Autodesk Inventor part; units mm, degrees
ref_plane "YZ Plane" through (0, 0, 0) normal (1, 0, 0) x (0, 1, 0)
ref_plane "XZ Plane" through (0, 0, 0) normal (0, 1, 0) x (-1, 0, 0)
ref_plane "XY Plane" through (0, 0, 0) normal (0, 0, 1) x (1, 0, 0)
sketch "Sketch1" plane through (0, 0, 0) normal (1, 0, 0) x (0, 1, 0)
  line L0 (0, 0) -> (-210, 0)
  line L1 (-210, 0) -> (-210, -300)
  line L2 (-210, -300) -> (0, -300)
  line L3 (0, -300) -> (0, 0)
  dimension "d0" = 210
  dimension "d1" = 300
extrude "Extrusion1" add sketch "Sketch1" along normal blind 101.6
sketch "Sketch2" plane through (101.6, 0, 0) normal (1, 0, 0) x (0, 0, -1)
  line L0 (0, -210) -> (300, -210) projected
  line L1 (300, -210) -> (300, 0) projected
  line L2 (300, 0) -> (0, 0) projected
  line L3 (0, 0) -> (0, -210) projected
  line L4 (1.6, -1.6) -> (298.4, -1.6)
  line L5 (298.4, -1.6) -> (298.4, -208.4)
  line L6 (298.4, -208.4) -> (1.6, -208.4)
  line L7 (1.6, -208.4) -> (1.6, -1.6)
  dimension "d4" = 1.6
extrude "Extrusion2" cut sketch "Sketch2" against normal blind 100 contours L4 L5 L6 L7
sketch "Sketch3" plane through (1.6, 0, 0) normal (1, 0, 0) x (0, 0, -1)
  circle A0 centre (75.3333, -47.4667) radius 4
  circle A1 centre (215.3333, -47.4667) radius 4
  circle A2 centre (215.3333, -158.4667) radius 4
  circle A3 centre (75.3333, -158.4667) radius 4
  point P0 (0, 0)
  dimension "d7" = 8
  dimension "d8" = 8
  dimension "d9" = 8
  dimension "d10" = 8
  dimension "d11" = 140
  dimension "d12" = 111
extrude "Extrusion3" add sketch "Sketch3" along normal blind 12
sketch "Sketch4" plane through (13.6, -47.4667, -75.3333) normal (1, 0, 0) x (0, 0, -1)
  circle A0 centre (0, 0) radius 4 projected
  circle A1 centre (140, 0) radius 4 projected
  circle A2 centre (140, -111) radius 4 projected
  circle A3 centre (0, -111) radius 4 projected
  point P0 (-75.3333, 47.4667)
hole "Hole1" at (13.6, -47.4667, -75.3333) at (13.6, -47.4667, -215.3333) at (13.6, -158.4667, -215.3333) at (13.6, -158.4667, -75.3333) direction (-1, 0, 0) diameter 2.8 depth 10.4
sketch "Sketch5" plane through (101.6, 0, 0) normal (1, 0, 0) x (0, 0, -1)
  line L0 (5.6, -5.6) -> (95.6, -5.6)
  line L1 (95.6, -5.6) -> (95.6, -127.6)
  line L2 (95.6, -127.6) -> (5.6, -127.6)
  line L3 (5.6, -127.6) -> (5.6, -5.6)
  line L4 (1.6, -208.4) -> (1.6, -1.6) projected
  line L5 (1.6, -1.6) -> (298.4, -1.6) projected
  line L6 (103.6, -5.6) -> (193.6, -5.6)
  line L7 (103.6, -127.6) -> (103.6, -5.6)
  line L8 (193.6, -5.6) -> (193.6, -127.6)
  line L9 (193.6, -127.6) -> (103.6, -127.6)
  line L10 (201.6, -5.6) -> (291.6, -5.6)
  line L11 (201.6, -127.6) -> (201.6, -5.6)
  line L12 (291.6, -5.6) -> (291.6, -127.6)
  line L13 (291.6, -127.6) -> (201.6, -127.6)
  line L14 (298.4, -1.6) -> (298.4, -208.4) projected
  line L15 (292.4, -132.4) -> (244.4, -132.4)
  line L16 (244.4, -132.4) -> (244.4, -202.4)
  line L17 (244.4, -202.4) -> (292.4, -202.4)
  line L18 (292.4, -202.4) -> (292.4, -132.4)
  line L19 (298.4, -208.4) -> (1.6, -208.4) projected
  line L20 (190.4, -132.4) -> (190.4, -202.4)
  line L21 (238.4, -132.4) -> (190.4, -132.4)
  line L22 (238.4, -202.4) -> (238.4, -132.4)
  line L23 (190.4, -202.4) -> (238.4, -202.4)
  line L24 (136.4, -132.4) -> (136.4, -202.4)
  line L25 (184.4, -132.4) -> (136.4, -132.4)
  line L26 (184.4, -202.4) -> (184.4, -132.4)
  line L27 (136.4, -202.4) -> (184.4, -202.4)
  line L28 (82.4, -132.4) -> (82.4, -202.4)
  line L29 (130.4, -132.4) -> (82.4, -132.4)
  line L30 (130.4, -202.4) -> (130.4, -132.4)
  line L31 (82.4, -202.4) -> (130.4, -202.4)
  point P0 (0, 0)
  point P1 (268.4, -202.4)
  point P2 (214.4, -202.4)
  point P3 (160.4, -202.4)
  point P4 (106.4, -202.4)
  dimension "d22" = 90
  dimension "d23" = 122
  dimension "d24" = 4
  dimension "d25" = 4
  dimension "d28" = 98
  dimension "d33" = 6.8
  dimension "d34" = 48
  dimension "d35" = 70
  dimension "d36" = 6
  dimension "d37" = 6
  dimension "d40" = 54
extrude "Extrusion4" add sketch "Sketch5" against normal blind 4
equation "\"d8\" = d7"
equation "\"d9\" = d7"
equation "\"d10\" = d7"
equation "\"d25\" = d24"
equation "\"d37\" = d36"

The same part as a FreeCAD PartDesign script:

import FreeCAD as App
import Part
import Sketcher


def add_polygon(sketch, points):
    """Adds a closed chain of lines whose ends are joined by coincident constraints."""
    first, n = sketch.GeometryCount, len(points)
    for a, b in zip(points, points[1:] + points[:1]):
        sketch.addGeometry(Part.LineSegment(App.Vector(*a, 0), App.Vector(*b, 0)), False)
    for i in range(n):
        sketch.addConstraint(Sketcher.Constraint("Coincident", first + i, 2, first + (i + 1) % n, 1))

doc = App.newDocument("Part")
params = doc.addObject("Spreadsheet::Sheet", "Params")
for row, (alias, value) in enumerate([
    ("sketch1_width", "210 mm"),
    ("sketch1_height", "300 mm"),
    ("pad1_length", "101.6 mm"),
    ("sketch2_width", "206.8 mm"),
    ("sketch2_height", "296.8 mm"),
    ("pocket1_length", "100 mm"),
    ("sketch3_diameter", "8 mm"),
    ("pad2_length", "12 mm"),
    ("sketch4_diameter", "2.8 mm"),
    ("hole_diameter", "2.8 mm"),
    ("hole_depth", "10.4 mm"),
    ("sketch5_width", "70 mm"),
    ("sketch5_width2", "122 mm"),
    ("sketch5_height", "48 mm"),
    ("sketch5_height2", "90 mm"),
    ("sketch5_width3", "206.8 mm"),
    ("pad3_length", "4 mm"),
], start=1):
    params.set(f"A{row}", alias)
    params.set(f"B{row}", "=" + value)
    params.setAlias(f"B{row}", alias)

body = doc.addObject("PartDesign::Body", "Body")

sketch1 = body.newObject("Sketcher::SketchObject", "Sketch")
sketch1.AttachmentSupport = (doc.getObject("YZ_Plane"), [""])
sketch1.MapMode = "FlatFace"
add_polygon(sketch1, [(0, -300), (0, 0), (-210, 0), (-210, -300)])
sketch1.addConstraint(Sketcher.Constraint("Vertical", 0))
sketch1.addConstraint(Sketcher.Constraint("Horizontal", 1))
sketch1.addConstraint(Sketcher.Constraint("Vertical", 2))
sketch1.addConstraint(Sketcher.Constraint("Horizontal", 3))
sketch1.addConstraint(Sketcher.Constraint("Coincident", 0, 2, -1, 1))
sketch1.addConstraint(Sketcher.Constraint("DistanceX", 1, 2, 1, 1, 210.0))
sketch1.addConstraint(Sketcher.Constraint("DistanceY", 0, 1, 0, 2, 300.0))
sketch1.setExpression("Constraints[9]", "Params.sketch1_width")
sketch1.setExpression("Constraints[10]", "Params.sketch1_height")
pad1 = body.newObject("PartDesign::Pad", "Pad")
pad1.Profile = sketch1
pad1.setExpression("Length", "Params.pad1_length")

sketch2 = body.newObject("Sketcher::SketchObject", "Sketch001")
sketch2.AttachmentSupport = (doc.getObject("YZ_Plane"), [""])
sketch2.MapMode = "FlatFace"
sketch2.AttachmentOffset = App.Placement(App.Vector(0, 0, 101.6), App.Rotation())
add_polygon(sketch2, [(-2, -298), (-2, -2), (-208, -2), (-208, -298)])
sketch2.addConstraint(Sketcher.Constraint("Vertical", 0))
sketch2.addConstraint(Sketcher.Constraint("Horizontal", 1))
sketch2.addConstraint(Sketcher.Constraint("Vertical", 2))
sketch2.addConstraint(Sketcher.Constraint("Horizontal", 3))
sketch2.addConstraint(Sketcher.Constraint("DistanceX", 0, 2, -1, 1, 1.6))
sketch2.addConstraint(Sketcher.Constraint("DistanceY", 0, 2, -1, 1, 1.6))
sketch2.addConstraint(Sketcher.Constraint("DistanceX", 1, 2, 1, 1, 206.8))
sketch2.addConstraint(Sketcher.Constraint("DistanceY", 0, 1, 0, 2, 296.8))
sketch2.setExpression("Constraints[10]", "Params.sketch2_width")
sketch2.setExpression("Constraints[11]", "Params.sketch2_height")
pocket1 = body.newObject("PartDesign::Pocket", "Pocket")
pocket1.Profile = sketch2
pocket1.setExpression("Length", "Params.pocket1_length")

sketch3 = body.newObject("Sketcher::SketchObject", "Sketch002")
sketch3.AttachmentSupport = (doc.getObject("YZ_Plane"), [""])
sketch3.MapMode = "FlatFace"
sketch3.AttachmentOffset = App.Placement(App.Vector(0, 0, 1.6), App.Rotation())
sketch3.addGeometry(Part.Circle(App.Vector(-47.5, -75.3, 0), App.Vector(0, 0, 1), 4), False)
sketch3.addGeometry(Part.Circle(App.Vector(-47.5, -215.3, 0), App.Vector(0, 0, 1), 4), False)
sketch3.addGeometry(Part.Circle(App.Vector(-158.5, -215.3, 0), App.Vector(0, 0, 1), 4), False)
sketch3.addGeometry(Part.Circle(App.Vector(-158.5, -75.3, 0), App.Vector(0, 0, 1), 4), False)
sketch3.addConstraint(Sketcher.Constraint("Equal", 0, 1))
sketch3.addConstraint(Sketcher.Constraint("Equal", 1, 2))
sketch3.addConstraint(Sketcher.Constraint("Equal", 2, 3))
sketch3.addConstraint(Sketcher.Constraint("Horizontal", 1, 3, 2, 3))
sketch3.addConstraint(Sketcher.Constraint("Horizontal", 0, 3, 3, 3))
sketch3.addConstraint(Sketcher.Constraint("Vertical", 0, 3, 1, 3))
sketch3.addConstraint(Sketcher.Constraint("Vertical", 2, 3, 3, 3))
sketch3.addConstraint(Sketcher.Constraint("Diameter", 0, 8.0))
sketch3.addConstraint(Sketcher.Constraint("DistanceY", 1, 3, 0, 3, 140.0))
sketch3.addConstraint(Sketcher.Constraint("DistanceX", 2, 3, 1, 3, 111.0))
sketch3.addConstraint(Sketcher.Constraint("DistanceX", 0, 3, -1, 1, 47.4667))
sketch3.addConstraint(Sketcher.Constraint("DistanceY", 0, 3, -1, 1, 75.3333))
sketch3.setExpression("Constraints[7]", "Params.sketch3_diameter")
pad2 = body.newObject("PartDesign::Pad", "Pad001")
pad2.Profile = sketch3
pad2.setExpression("Length", "Params.pad2_length")

sketch4 = body.newObject("Sketcher::SketchObject", "Sketch003")
sketch4.AttachmentSupport = (doc.getObject("YZ_Plane"), [""])
sketch4.MapMode = "FlatFace"
sketch4.AttachmentOffset = App.Placement(App.Vector(0, 0, 13.6), App.Rotation())
sketch4.addGeometry(Part.Circle(App.Vector(-47.5, -75.3, 0), App.Vector(0, 0, 1), 1.4), False)
sketch4.addGeometry(Part.Circle(App.Vector(-47.5, -215.3, 0), App.Vector(0, 0, 1), 1.4), False)
sketch4.addGeometry(Part.Circle(App.Vector(-158.5, -215.3, 0), App.Vector(0, 0, 1), 1.4), False)
sketch4.addGeometry(Part.Circle(App.Vector(-158.5, -75.3, 0), App.Vector(0, 0, 1), 1.4), False)
sketch4.addConstraint(Sketcher.Constraint("Equal", 0, 1))
sketch4.addConstraint(Sketcher.Constraint("Equal", 1, 2))
sketch4.addConstraint(Sketcher.Constraint("Equal", 2, 3))
sketch4.addConstraint(Sketcher.Constraint("Horizontal", 1, 3, 2, 3))
sketch4.addConstraint(Sketcher.Constraint("Horizontal", 0, 3, 3, 3))
sketch4.addConstraint(Sketcher.Constraint("Vertical", 0, 3, 1, 3))
sketch4.addConstraint(Sketcher.Constraint("Vertical", 2, 3, 3, 3))
sketch4.addConstraint(Sketcher.Constraint("Diameter", 0, 2.8))
sketch4.addConstraint(Sketcher.Constraint("DistanceY", 1, 3, 0, 3, 140.0))
sketch4.addConstraint(Sketcher.Constraint("DistanceX", 2, 3, 1, 3, 111.0))
sketch4.addConstraint(Sketcher.Constraint("DistanceX", 0, 3, -1, 1, 47.4667))
sketch4.addConstraint(Sketcher.Constraint("DistanceY", 0, 3, -1, 1, 75.3333))
sketch4.setExpression("Constraints[7]", "Params.sketch4_diameter")
doc.recompute()
hole = body.newObject("PartDesign::Hole", "Hole")
hole.Profile = sketch4
hole.ThreadType = "None"
hole.setExpression("Diameter", "Params.hole_diameter")
hole.DepthType = "Dimension"
hole.setExpression("Depth", "Params.hole_depth")
hole.DrillPoint = "Flat"

sketch5 = body.newObject("Sketcher::SketchObject", "Sketch004")
sketch5.AttachmentSupport = (doc.getObject("YZ_Plane"), [""])
sketch5.MapMode = "FlatFace"
sketch5.AttachmentOffset = App.Placement(App.Vector(0, 0, 101.6), App.Rotation())
add_polygon(sketch5, [(-2, -2), (-208, -2), (-208, -298), (-2, -298)])
add_polygon(sketch5, [(-202, -82), (-132, -82), (-132, -130), (-202, -130)])
add_polygon(sketch5, [(-202, -136), (-132, -136), (-132, -184), (-202, -184)])
add_polygon(sketch5, [(-202, -190), (-132, -190), (-132, -238), (-202, -238)])
add_polygon(sketch5, [(-132, -244), (-132, -292), (-202, -292), (-202, -244)])
add_polygon(sketch5, [(-128, -6), (-6, -6), (-6, -96), (-128, -96)])
add_polygon(sketch5, [(-128, -104), (-6, -104), (-6, -194), (-128, -194)])
add_polygon(sketch5, [(-128, -202), (-6, -202), (-6, -292), (-128, -292)])
sketch5.addConstraint(Sketcher.Constraint("Horizontal", 0))
sketch5.addConstraint(Sketcher.Constraint("Vertical", 1))
sketch5.addConstraint(Sketcher.Constraint("Horizontal", 2))
sketch5.addConstraint(Sketcher.Constraint("Vertical", 3))
sketch5.addConstraint(Sketcher.Constraint("Horizontal", 4))
sketch5.addConstraint(Sketcher.Constraint("Vertical", 5))
sketch5.addConstraint(Sketcher.Constraint("Horizontal", 6))
sketch5.addConstraint(Sketcher.Constraint("Vertical", 7))
sketch5.addConstraint(Sketcher.Constraint("Horizontal", 8))
sketch5.addConstraint(Sketcher.Constraint("Vertical", 9))
sketch5.addConstraint(Sketcher.Constraint("Horizontal", 10))
sketch5.addConstraint(Sketcher.Constraint("Vertical", 11))
sketch5.addConstraint(Sketcher.Constraint("Horizontal", 12))
sketch5.addConstraint(Sketcher.Constraint("Vertical", 13))
sketch5.addConstraint(Sketcher.Constraint("Horizontal", 14))
sketch5.addConstraint(Sketcher.Constraint("Vertical", 15))
sketch5.addConstraint(Sketcher.Constraint("Vertical", 16))
sketch5.addConstraint(Sketcher.Constraint("Horizontal", 17))
sketch5.addConstraint(Sketcher.Constraint("Vertical", 18))
sketch5.addConstraint(Sketcher.Constraint("Horizontal", 19))
sketch5.addConstraint(Sketcher.Constraint("Horizontal", 20))
sketch5.addConstraint(Sketcher.Constraint("Vertical", 21))
sketch5.addConstraint(Sketcher.Constraint("Horizontal", 22))
sketch5.addConstraint(Sketcher.Constraint("Vertical", 23))
sketch5.addConstraint(Sketcher.Constraint("Horizontal", 24))
sketch5.addConstraint(Sketcher.Constraint("Vertical", 25))
sketch5.addConstraint(Sketcher.Constraint("Horizontal", 26))
sketch5.addConstraint(Sketcher.Constraint("Vertical", 27))
sketch5.addConstraint(Sketcher.Constraint("Horizontal", 28))
sketch5.addConstraint(Sketcher.Constraint("Vertical", 29))
sketch5.addConstraint(Sketcher.Constraint("Horizontal", 30))
sketch5.addConstraint(Sketcher.Constraint("Vertical", 31))
sketch5.addConstraint(Sketcher.Constraint("Vertical", 5, 2, 8, 2))
sketch5.addConstraint(Sketcher.Constraint("Vertical", 7, 2, 10, 2))
sketch5.addConstraint(Sketcher.Constraint("Vertical", 9, 2, 12, 2))
sketch5.addConstraint(Sketcher.Constraint("Vertical", 11, 2, 14, 2))
sketch5.addConstraint(Sketcher.Constraint("Vertical", 13, 2, 16, 2))
sketch5.addConstraint(Sketcher.Constraint("Vertical", 15, 2, 17, 2))
sketch5.addConstraint(Sketcher.Constraint("Vertical", 21, 2, 24, 2))
sketch5.addConstraint(Sketcher.Constraint("Vertical", 23, 2, 26, 2))
sketch5.addConstraint(Sketcher.Constraint("Vertical", 25, 2, 28, 2))
sketch5.addConstraint(Sketcher.Constraint("Vertical", 27, 2, 30, 2))
sketch5.addConstraint(Sketcher.Constraint("Equal", 7, 9))
sketch5.addConstraint(Sketcher.Constraint("Equal", 11, 13))
sketch5.addConstraint(Sketcher.Constraint("Equal", 15, 16))
sketch5.addConstraint(Sketcher.Constraint("Equal", 23, 25))
sketch5.addConstraint(Sketcher.Constraint("Equal", 27, 29))
sketch5.addConstraint(Sketcher.Constraint("DistanceX", 4, 1, 4, 2, 70.0))
sketch5.addConstraint(Sketcher.Constraint("DistanceX", 20, 1, 20, 2, 122.0))
sketch5.addConstraint(Sketcher.Constraint("DistanceY", 5, 2, 5, 1, 48.0))
sketch5.addConstraint(Sketcher.Constraint("DistanceY", 21, 2, 21, 1, 90.0))
sketch5.addConstraint(Sketcher.Constraint("DistanceX", 0, 2, 6, 2, 6.0))
sketch5.addConstraint(Sketcher.Constraint("DistanceY", 8, 2, 5, 2, 6.0))
sketch5.addConstraint(Sketcher.Constraint("DistanceY", 12, 2, 9, 2, 6.0))
sketch5.addConstraint(Sketcher.Constraint("DistanceY", 16, 2, 13, 2, 54.0))
sketch5.addConstraint(Sketcher.Constraint("DistanceY", 1, 2, 16, 2, 6.0))
sketch5.addConstraint(Sketcher.Constraint("DistanceX", 20, 2, 3, 2, 4.0))
sketch5.addConstraint(Sketcher.Constraint("DistanceY", 20, 2, 3, 2, 4.0))
sketch5.addConstraint(Sketcher.Constraint("DistanceY", 24, 2, 20, 2, 98.0))
sketch5.addConstraint(Sketcher.Constraint("DistanceY", 28, 2, 24, 2, 98.0))
sketch5.addConstraint(Sketcher.Constraint("DistanceY", 2, 2, 29, 2, 6.8))
sketch5.addConstraint(Sketcher.Constraint("DistanceX", 0, 2, 0, 1, 206.8))
sketch5.addConstraint(Sketcher.Constraint("DistanceX", 0, 2, -1, 1, 208.4))
sketch5.addConstraint(Sketcher.Constraint("DistanceY", 0, 2, -1, 1, 1.6))
sketch5.setExpression("Constraints[79]", "Params.sketch5_width")
sketch5.setExpression("Constraints[80]", "Params.sketch5_width2")
sketch5.setExpression("Constraints[81]", "Params.sketch5_height")
sketch5.setExpression("Constraints[82]", "Params.sketch5_height2")
sketch5.setExpression("Constraints[93]", "Params.sketch5_width3")
pad3 = body.newObject("PartDesign::Pad", "Pad002")
pad3.Profile = sketch5
pad3.setExpression("Length", "Params.pad3_length")
pad3.Reversed = True

doc.recompute()
